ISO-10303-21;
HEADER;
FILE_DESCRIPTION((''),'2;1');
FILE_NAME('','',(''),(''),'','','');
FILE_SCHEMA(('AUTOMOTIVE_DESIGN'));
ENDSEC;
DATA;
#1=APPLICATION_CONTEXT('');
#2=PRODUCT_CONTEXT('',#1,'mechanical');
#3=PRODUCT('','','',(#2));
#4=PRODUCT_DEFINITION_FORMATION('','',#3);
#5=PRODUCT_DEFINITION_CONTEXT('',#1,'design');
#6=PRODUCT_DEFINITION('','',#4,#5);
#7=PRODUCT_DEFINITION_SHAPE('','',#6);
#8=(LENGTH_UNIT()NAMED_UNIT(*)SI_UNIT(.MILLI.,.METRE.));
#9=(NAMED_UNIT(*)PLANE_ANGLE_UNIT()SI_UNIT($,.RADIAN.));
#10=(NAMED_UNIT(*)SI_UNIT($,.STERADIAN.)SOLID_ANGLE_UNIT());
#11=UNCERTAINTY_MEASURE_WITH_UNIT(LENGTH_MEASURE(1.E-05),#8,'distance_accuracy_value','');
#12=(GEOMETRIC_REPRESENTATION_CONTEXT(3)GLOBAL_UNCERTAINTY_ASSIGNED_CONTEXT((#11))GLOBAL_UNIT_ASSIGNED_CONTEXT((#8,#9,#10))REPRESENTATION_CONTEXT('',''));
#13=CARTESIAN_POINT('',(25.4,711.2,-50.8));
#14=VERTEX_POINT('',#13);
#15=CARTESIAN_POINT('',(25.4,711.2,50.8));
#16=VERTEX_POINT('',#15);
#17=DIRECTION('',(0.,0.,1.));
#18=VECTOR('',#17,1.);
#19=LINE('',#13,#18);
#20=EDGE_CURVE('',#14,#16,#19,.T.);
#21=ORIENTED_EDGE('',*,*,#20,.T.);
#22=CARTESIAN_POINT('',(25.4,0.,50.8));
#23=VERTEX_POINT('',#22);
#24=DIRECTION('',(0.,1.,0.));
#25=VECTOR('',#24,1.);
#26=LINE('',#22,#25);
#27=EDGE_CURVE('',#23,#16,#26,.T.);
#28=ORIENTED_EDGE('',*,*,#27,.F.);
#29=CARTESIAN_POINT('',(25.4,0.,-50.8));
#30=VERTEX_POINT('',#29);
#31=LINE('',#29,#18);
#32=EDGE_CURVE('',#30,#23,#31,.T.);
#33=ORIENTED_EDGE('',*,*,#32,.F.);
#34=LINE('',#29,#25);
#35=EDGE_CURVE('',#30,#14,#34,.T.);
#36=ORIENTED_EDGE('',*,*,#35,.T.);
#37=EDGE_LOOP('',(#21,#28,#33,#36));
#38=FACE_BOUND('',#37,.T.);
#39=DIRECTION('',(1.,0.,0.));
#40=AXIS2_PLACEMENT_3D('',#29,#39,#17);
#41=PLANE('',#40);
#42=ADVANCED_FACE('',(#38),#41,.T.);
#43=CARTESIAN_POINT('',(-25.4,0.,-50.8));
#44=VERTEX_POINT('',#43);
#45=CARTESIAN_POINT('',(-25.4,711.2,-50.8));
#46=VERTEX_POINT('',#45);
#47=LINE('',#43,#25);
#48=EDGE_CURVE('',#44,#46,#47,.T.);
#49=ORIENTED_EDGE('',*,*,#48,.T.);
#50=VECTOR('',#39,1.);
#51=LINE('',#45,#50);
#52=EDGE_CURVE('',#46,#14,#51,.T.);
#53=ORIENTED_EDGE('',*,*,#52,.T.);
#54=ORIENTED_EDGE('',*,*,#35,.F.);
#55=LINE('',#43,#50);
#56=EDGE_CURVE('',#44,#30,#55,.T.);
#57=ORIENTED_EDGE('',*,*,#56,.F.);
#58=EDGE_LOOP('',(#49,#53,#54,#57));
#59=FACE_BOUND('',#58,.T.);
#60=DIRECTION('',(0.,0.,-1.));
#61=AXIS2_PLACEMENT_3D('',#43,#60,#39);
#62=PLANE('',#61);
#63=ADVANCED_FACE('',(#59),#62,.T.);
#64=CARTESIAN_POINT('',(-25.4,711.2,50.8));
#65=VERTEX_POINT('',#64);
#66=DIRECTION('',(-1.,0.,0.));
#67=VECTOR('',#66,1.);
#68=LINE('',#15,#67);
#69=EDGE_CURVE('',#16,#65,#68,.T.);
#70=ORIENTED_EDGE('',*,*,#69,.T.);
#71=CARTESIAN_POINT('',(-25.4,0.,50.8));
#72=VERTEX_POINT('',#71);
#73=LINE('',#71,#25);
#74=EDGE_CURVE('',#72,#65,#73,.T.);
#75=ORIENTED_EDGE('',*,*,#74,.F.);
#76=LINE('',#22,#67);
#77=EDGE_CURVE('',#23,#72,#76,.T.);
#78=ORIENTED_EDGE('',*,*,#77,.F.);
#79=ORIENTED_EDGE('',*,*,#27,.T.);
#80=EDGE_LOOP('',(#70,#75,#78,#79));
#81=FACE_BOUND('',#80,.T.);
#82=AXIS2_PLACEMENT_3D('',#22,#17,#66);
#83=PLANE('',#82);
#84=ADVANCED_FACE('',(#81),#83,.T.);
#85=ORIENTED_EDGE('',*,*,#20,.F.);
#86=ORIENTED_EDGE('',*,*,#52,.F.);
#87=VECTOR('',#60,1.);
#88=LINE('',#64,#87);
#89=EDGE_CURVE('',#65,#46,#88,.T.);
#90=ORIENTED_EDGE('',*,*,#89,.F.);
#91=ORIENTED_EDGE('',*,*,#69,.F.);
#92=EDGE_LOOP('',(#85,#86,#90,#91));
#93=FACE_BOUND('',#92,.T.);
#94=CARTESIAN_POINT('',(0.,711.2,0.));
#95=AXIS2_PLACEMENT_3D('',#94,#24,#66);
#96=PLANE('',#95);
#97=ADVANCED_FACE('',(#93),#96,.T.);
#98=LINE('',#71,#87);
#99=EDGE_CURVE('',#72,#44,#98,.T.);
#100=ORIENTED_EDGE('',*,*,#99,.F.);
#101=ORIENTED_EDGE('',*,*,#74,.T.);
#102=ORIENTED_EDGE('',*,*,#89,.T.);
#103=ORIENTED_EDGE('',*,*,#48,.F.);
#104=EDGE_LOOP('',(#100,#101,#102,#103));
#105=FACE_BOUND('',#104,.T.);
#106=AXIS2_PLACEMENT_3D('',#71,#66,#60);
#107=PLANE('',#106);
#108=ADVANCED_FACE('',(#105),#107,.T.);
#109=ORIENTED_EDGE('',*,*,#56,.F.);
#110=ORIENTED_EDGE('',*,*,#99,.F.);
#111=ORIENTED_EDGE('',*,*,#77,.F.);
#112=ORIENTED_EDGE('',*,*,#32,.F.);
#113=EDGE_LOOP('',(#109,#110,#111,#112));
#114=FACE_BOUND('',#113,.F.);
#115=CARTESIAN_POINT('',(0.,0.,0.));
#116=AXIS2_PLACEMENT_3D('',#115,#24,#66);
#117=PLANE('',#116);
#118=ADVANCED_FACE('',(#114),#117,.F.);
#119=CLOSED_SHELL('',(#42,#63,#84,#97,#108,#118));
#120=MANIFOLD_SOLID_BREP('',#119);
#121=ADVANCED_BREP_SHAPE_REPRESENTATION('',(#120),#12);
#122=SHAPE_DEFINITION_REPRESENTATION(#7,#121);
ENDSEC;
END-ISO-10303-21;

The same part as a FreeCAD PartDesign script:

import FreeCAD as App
import Part
import Sketcher
from FreeCAD import Vector
Q = App.Units.Quantity

doc = App.newDocument("Part")
body = doc.addObject("PartDesign::Body", "Body")

sketch1 = body.newObject("Sketcher::SketchObject", "Sketch")
sketch1.AttachmentSupport = (doc.getObject("XZ_Plane"), [""])
sketch1.MapMode = "FlatFace"
sketch1.addGeometry(Part.LineSegment(Vector(-25, 51, 0), Vector(25, 51, 0)), False)
sketch1.addGeometry(Part.LineSegment(Vector(25, 51, 0), Vector(25, -51, 0)), False)
sketch1.addGeometry(Part.LineSegment(Vector(25, -51, 0), Vector(-25, -51, 0)), False)
sketch1.addGeometry(Part.LineSegment(Vector(-25, -51, 0), Vector(-25, 51, 0)), False)
sketch1.addConstraint(Sketcher.Constraint("Coincident", 0, 2, 1, 1))
sketch1.addConstraint(Sketcher.Constraint("Coincident", 1, 2, 2, 1))
sketch1.addConstraint(Sketcher.Constraint("Coincident", 2, 2, 3, 1))
sketch1.addConstraint(Sketcher.Constraint("Coincident", 3, 2, 0, 1))
sketch1.addConstraint(Sketcher.Constraint("Horizontal", 0))
sketch1.addConstraint(Sketcher.Constraint("Vertical", 1))
sketch1.addConstraint(Sketcher.Constraint("Horizontal", 2))
sketch1.addConstraint(Sketcher.Constraint("Vertical", 3))
sketch1.addConstraint(Sketcher.Constraint("Symmetric", 0, 2, 2, 2, -1, 1))
sketch1.addConstraint(Sketcher.Constraint("DistanceX", 0, 1, 0, 2, Q("2 in")))
sketch1.addConstraint(Sketcher.Constraint("DistanceY", 1, 2, 1, 1, Q("4 in")))
pad1 = body.newObject("PartDesign::Pad", "Pad")
pad1.Profile = sketch1
pad1.Length = Q("28 in")
pad1.Reversed = True

doc.recompute()
